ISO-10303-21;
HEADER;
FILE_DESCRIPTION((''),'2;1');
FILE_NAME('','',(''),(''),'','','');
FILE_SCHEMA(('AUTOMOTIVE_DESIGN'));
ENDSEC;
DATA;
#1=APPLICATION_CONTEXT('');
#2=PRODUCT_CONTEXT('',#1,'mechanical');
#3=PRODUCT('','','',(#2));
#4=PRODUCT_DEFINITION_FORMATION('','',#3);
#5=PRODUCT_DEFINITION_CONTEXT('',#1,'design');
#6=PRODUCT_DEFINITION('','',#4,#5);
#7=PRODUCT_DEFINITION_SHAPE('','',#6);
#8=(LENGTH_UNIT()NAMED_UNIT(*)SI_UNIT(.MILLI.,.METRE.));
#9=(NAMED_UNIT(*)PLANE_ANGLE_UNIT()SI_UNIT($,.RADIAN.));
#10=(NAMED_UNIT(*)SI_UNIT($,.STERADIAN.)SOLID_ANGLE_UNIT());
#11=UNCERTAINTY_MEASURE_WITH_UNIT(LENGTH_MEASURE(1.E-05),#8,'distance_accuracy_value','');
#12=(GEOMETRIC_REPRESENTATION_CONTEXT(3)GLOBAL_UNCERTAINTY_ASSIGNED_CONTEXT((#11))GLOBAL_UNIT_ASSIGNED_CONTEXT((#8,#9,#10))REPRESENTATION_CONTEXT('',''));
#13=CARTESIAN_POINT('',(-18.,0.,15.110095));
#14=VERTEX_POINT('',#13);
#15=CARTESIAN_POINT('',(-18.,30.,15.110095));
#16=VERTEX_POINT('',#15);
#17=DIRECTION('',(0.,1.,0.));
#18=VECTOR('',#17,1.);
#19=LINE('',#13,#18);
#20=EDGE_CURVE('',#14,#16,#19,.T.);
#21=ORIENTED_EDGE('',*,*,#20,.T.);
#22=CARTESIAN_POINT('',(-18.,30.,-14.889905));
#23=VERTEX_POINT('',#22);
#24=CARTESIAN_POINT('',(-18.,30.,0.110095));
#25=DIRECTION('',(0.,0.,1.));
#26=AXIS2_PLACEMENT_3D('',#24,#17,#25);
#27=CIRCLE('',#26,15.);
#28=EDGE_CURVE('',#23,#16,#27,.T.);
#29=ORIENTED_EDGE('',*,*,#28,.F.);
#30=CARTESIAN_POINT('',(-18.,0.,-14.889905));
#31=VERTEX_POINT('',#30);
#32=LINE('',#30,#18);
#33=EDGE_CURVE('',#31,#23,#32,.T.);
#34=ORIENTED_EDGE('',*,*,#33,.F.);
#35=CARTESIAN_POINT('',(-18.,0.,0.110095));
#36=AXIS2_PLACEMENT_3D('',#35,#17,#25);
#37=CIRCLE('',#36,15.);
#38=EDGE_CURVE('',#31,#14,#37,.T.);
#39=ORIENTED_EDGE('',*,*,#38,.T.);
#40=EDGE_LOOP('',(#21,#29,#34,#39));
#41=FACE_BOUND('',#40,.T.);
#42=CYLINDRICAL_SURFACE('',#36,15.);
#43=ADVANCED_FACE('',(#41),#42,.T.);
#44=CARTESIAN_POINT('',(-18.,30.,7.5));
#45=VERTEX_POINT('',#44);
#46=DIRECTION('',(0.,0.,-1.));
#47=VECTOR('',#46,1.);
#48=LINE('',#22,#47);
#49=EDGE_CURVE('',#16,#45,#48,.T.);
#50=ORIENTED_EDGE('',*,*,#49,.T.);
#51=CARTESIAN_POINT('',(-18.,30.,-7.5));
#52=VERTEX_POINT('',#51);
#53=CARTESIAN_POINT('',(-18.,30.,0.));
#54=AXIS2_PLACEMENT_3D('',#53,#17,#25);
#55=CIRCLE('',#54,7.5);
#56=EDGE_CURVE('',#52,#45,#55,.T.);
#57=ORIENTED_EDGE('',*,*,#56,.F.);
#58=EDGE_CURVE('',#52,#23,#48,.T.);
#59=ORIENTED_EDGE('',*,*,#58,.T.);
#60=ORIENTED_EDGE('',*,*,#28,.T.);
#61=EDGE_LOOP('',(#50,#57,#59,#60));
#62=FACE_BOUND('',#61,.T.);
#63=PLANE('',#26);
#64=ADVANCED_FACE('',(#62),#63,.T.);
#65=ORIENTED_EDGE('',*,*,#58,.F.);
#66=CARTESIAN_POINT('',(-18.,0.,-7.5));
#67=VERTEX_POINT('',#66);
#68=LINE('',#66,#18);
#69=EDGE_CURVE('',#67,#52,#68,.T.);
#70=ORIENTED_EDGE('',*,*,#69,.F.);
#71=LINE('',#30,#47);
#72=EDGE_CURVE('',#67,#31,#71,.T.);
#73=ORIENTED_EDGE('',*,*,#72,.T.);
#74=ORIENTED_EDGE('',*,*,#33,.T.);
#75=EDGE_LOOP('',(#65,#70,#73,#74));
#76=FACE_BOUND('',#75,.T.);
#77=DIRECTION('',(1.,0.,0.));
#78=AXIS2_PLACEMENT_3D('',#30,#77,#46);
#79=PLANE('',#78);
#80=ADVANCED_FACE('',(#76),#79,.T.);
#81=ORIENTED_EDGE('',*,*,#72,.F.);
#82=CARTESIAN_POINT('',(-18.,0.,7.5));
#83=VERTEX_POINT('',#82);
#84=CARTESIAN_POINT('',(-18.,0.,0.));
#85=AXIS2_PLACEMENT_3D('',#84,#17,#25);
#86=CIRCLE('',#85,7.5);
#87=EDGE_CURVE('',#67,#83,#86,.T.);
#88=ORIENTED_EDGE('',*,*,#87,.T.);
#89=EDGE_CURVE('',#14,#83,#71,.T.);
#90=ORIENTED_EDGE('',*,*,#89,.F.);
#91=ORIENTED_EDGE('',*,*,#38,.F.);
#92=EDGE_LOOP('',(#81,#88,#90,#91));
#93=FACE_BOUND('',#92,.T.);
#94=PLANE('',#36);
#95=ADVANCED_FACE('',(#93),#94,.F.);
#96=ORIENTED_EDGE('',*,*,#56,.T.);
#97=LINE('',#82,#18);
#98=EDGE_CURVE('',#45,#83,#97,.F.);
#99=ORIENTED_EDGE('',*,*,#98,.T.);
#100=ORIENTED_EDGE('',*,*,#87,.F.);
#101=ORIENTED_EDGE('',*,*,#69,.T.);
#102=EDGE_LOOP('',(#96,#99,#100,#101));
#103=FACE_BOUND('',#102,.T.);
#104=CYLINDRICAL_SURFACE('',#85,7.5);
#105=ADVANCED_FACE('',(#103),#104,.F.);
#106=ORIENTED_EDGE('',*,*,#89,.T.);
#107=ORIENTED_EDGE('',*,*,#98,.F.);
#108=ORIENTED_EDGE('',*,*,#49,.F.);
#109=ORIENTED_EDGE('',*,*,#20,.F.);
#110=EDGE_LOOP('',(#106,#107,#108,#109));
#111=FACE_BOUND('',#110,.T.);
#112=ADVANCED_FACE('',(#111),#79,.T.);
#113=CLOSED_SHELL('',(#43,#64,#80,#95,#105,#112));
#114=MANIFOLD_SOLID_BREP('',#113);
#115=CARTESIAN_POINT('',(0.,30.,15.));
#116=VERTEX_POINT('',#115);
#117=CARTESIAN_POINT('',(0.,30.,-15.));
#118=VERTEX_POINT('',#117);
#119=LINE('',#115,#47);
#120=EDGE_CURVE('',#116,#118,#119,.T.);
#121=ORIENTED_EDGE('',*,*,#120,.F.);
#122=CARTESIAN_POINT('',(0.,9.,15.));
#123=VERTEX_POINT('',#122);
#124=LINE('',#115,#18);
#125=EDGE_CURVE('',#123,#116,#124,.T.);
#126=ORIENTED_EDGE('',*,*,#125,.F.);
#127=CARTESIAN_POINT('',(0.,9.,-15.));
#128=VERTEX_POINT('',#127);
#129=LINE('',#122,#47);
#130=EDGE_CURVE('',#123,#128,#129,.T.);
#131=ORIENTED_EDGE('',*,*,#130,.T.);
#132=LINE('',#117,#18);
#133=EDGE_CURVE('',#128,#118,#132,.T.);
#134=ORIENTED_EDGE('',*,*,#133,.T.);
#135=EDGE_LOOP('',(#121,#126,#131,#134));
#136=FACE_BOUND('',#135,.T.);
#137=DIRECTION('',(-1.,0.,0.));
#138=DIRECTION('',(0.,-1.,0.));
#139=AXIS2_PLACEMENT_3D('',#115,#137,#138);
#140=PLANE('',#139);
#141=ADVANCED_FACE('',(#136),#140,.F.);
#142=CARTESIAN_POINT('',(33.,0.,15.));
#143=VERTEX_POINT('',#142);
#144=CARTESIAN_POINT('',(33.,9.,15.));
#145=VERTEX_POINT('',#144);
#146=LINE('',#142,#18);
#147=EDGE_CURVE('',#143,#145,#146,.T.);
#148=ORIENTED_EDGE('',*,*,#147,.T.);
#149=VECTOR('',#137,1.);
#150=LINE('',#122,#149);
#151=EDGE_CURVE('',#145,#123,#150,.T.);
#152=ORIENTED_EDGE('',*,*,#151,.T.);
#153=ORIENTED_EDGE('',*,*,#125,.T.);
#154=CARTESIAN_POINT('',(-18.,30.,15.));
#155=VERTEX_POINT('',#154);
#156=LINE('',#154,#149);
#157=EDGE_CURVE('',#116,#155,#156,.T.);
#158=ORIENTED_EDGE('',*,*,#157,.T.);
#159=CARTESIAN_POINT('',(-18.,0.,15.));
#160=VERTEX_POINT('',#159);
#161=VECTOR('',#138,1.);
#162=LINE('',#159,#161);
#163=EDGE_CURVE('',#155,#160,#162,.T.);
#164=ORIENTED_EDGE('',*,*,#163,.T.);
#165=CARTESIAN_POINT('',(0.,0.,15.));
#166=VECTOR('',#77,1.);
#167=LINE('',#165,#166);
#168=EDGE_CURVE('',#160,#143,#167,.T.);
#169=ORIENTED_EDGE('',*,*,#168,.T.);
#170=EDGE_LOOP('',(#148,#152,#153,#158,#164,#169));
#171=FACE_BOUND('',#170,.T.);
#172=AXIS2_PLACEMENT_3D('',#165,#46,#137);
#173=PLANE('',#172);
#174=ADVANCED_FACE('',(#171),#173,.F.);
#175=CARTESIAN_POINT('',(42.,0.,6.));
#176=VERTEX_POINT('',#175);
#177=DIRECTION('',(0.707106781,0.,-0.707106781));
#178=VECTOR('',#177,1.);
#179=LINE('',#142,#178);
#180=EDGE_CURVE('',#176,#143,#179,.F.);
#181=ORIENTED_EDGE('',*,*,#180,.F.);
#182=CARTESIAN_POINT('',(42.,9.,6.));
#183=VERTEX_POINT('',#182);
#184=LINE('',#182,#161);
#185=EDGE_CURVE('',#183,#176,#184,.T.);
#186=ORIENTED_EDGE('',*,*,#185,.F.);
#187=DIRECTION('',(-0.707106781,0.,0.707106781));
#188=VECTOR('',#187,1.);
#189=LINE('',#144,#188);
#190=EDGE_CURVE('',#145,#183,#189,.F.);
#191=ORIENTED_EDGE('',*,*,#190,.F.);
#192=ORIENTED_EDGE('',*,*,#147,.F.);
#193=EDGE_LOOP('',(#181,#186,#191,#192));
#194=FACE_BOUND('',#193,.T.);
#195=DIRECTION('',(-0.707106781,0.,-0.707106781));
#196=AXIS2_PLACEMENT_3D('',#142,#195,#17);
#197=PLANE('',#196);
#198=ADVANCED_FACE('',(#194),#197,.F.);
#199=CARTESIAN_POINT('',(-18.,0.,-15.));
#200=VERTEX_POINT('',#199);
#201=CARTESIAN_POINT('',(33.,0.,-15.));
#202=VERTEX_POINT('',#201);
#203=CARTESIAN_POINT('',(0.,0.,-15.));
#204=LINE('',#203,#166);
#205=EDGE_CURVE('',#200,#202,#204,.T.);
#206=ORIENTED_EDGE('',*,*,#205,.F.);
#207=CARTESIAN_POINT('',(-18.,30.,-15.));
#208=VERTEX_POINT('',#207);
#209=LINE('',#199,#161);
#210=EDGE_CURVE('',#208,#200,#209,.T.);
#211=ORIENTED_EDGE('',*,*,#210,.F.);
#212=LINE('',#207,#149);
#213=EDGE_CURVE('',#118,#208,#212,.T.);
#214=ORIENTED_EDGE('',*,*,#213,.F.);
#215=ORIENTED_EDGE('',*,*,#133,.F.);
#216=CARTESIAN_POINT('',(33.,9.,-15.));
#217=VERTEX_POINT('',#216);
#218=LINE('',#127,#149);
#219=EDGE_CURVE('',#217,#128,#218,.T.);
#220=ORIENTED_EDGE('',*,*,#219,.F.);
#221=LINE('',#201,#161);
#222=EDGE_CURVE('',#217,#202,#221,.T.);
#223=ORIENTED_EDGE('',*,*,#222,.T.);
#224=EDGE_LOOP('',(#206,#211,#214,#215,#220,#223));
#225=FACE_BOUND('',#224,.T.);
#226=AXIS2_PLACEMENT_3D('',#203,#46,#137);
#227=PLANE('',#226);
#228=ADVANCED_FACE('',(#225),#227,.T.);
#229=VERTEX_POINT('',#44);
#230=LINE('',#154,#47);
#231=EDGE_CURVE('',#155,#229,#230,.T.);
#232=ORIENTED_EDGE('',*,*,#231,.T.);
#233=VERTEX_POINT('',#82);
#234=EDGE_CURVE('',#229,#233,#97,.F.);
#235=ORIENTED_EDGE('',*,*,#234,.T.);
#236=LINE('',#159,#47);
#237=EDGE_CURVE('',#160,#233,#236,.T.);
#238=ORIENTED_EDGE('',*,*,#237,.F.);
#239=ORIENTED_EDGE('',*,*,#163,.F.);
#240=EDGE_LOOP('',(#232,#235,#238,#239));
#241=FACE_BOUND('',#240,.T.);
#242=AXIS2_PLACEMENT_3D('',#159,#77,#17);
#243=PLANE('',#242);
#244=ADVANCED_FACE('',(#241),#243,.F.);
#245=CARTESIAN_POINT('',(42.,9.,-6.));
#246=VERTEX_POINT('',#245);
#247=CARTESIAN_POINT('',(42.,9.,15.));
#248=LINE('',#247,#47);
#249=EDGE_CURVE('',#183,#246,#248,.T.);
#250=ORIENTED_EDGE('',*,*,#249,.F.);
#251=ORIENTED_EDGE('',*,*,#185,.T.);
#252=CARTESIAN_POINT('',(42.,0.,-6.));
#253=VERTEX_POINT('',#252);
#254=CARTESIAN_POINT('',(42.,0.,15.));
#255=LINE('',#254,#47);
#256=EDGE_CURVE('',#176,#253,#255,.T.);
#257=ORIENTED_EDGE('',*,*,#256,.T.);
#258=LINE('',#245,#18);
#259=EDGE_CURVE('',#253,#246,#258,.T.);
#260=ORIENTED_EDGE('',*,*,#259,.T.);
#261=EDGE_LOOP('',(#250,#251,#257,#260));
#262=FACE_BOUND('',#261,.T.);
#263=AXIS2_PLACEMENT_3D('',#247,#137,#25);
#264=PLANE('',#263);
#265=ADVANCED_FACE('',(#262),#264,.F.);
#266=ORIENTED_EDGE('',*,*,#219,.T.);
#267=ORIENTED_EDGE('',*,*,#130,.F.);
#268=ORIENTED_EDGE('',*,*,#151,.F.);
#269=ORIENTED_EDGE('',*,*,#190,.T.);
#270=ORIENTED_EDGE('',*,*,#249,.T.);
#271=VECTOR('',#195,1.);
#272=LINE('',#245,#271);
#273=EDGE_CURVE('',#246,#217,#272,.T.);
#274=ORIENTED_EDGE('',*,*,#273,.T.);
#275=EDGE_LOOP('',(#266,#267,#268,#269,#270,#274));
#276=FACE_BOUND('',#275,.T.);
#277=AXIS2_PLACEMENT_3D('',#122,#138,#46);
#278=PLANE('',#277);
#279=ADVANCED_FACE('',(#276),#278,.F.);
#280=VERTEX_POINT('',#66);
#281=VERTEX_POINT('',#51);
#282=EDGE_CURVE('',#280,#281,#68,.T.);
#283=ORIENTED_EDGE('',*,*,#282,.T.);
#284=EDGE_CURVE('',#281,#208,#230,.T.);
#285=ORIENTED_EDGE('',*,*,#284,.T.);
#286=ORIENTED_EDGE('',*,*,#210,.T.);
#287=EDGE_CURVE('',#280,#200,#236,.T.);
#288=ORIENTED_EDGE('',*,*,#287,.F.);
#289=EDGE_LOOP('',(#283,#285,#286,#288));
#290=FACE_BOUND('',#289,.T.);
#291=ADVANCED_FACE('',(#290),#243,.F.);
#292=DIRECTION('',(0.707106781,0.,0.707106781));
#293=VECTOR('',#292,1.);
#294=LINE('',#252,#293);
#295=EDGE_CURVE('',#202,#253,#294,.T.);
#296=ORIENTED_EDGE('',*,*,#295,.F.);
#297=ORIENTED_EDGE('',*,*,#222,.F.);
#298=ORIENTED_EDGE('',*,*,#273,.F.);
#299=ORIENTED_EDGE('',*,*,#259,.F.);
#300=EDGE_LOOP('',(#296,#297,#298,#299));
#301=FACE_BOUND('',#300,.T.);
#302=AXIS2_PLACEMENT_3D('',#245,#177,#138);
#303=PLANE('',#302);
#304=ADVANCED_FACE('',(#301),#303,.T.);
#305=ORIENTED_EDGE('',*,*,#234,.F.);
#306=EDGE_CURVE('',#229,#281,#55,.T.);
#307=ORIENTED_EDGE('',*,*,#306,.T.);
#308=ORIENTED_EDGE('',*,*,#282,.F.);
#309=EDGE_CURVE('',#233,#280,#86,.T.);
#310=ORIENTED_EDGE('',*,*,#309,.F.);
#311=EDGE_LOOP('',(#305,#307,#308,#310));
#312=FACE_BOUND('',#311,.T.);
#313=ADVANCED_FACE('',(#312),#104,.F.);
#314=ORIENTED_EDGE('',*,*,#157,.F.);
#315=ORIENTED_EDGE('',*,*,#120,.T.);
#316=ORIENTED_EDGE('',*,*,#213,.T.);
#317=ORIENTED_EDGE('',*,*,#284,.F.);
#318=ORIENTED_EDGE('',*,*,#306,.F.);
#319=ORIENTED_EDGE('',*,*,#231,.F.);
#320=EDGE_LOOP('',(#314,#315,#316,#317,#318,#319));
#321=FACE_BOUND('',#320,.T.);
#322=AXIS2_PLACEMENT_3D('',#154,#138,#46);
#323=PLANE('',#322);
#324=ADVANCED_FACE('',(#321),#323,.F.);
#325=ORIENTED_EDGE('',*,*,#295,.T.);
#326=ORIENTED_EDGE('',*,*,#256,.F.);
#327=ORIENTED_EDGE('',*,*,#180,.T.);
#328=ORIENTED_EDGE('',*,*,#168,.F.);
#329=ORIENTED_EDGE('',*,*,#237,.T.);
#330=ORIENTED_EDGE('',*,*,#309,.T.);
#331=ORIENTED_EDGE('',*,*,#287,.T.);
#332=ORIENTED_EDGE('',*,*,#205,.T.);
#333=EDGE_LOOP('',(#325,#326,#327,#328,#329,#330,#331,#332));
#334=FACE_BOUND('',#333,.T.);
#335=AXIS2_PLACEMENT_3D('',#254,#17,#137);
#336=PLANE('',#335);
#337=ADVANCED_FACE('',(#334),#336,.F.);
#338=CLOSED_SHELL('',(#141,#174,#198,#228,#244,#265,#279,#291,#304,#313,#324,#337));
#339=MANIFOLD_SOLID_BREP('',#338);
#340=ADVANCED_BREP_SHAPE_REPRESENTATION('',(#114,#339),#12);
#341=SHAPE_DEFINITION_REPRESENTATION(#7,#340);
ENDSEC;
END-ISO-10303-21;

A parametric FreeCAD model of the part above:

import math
import FreeCAD as App
import Part
import Sketcher

V = App.Vector


def edges_at(feature, points):
    """Names of the edges that pass closest to the given points."""
    edges = feature.Shape.Edges
    near = lambda p: min(range(len(edges)), key=lambda i: edges[i].distToShape(Part.Vertex(*p))[0])
    return sorted({f"Edge{near(p) + 1}" for p in points})

doc = App.newDocument("Part")
body = doc.addObject("PartDesign::Body", "Body")

# Sketch on XY plane
sketch1 = body.newObject("Sketcher::SketchObject", "Sketch")
sketch1.AttachmentSupport = (doc.getObject("XY_Plane"), [""])
sketch1.MapMode = "FlatFace"
sketch1.addGeometry(Part.LineSegment(V(0, 30, 0), V(-18, 30, 0)), False)
sketch1.addGeometry(Part.LineSegment(V(-18, 30, 0), V(-18, 0, 0)), False)
sketch1.addGeometry(Part.LineSegment(V(-18, 0, 0), V(42, 0, 0)), False)
sketch1.addGeometry(Part.LineSegment(V(42, 0, 0), V(42, 9, 0)), False)
sketch1.addGeometry(Part.LineSegment(V(42, 9, 0), V(0, 9, 0)), False)
sketch1.addGeometry(Part.LineSegment(V(0, 9, 0), V(0, 30, 0)), False)
sketch1.addConstraint(Sketcher.Constraint("Coincident", 0, 2, 1, 1))
sketch1.addConstraint(Sketcher.Constraint("Coincident", 1, 2, 2, 1))
sketch1.addConstraint(Sketcher.Constraint("Coincident", 2, 2, 3, 1))
sketch1.addConstraint(Sketcher.Constraint("Coincident", 3, 2, 4, 1))
sketch1.addConstraint(Sketcher.Constraint("Coincident", 4, 2, 5, 1))
sketch1.addConstraint(Sketcher.Constraint("Coincident", 5, 2, 0, 1))
sketch1.addConstraint(Sketcher.Constraint("Horizontal", 0))
sketch1.addConstraint(Sketcher.Constraint("Vertical", 1))
sketch1.addConstraint(Sketcher.Constraint("Horizontal", 2))
sketch1.addConstraint(Sketcher.Constraint("Vertical", 3))
sketch1.addConstraint(Sketcher.Constraint("Horizontal", 4))
sketch1.addConstraint(Sketcher.Constraint("Vertical", 5))
sketch1.addConstraint(Sketcher.Constraint("PointOnObject", 1, 2, -1))
sketch1.addConstraint(Sketcher.Constraint("PointOnObject", 4, 2, -2))
sketch1.addConstraint(Sketcher.Constraint("DistanceX", 0, 2, 0, 1, 18.0))
sketch1.addConstraint(Sketcher.Constraint("DistanceX", 2, 1, 2, 2, 60.0))
sketch1.addConstraint(Sketcher.Constraint("DistanceY", 1, 2, 1, 1, 30.0))
sketch1.addConstraint(Sketcher.Constraint("DistanceY", 3, 1, 3, 2, 9.0))
pad1 = body.newObject("PartDesign::Pad", "Pad")
pad1.Profile = sketch1
pad1.Type = "TwoLengths"
pad1.Length = 15
pad1.Length2 = 15
doc.recompute()

chamfer = body.newObject("PartDesign::Chamfer", "Chamfer")
chamfer.Base = (pad1, edges_at(pad1, [(42, 4.5, 15)]))
chamfer.Size = 9
doc.recompute()

chamfer2 = body.newObject("PartDesign::Chamfer", "Chamfer001")
chamfer2.Base = (chamfer, edges_at(chamfer, [(42, 4.5, -15)]))
chamfer2.Size = 9
body2 = doc.addObject("PartDesign::Body", "Body001")

# Sketch on XZ plane
sketch2 = body2.newObject("Sketcher::SketchObject", "Sketch001")
sketch2.AttachmentSupport = (doc.getObject("XZ_Plane001"), [""])
sketch2.MapMode = "FlatFace"
sketch2.AttachmentOffset = App.Placement(V(0, 0, -30), App.Rotation())
sketch2.addGeometry(Part.LineSegment(V(-18, 15.110095, 0), V(-18, -14.889905, 0)), False)
sketch2.addGeometry(Part.ArcOfCircle(Part.Circle(V(-18, 0.110095, 0), V(0, 0, 1), 15), math.radians(90), math.radians(270)), False)
sketch2.addConstraint(Sketcher.Constraint("Coincident", 0, 1, 1, 1))
sketch2.addConstraint(Sketcher.Constraint("Coincident", 1, 2, 0, 2))
sketch2.addConstraint(Sketcher.Constraint("Vertical", 0))
sketch2.addConstraint(Sketcher.Constraint("Vertical", 1, 3, 0, 1))
sketch2.addConstraint(Sketcher.Constraint("Radius", 1, 15.0))
sketch2.addConstraint(Sketcher.Constraint("DistanceX", 1, 3, -1, 1, 18.0))
sketch2.addConstraint(Sketcher.Constraint("DistanceY", -1, 1, 1, 3, 0.110095))
pad2 = body2.newObject("PartDesign::Pad", "Pad001")
pad2.Profile = sketch2
pad2.Length = 30
body3 = doc.addObject("PartDesign::Body", "Body002")

# Sketch on XZ plane
sketch3 = body3.newObject("Sketcher::SketchObject", "Sketch002")
sketch3.AttachmentSupport = (doc.getObject("XZ_Plane002"), [""])
sketch3.MapMode = "FlatFace"
sketch3.AttachmentOffset = App.Placement(V(0, 0, -30), App.Rotation())
sketch3.addGeometry(Part.Circle(V(-18, 0, 0), V(0, 0, 1), 7.5), False)
sketch3.addConstraint(Sketcher.Constraint("PointOnObject", 0, 3, -1))
sketch3.addConstraint(Sketcher.Constraint("Diameter", 0, 15.0))
sketch3.addConstraint(Sketcher.Constraint("DistanceX", 0, 3, -1, 1, 18.0))
pad3 = body3.newObject("PartDesign::Pad", "Pad002")
pad3.Profile = sketch3
pad3.Length = 54.780247
doc.recompute()

body4 = doc.addObject("PartDesign::Body", "Body003")
body4.BaseFeature = body3
boolean = body.newObject("PartDesign::Boolean", "Boolean")
boolean.Type = "Cut"
boolean.addObjects([body4])
doc.recompute()

boolean2 = body2.newObject("PartDesign::Boolean", "Boolean001")
boolean2.Type = "Cut"
boolean2.addObjects([body3])

doc.recompute()
